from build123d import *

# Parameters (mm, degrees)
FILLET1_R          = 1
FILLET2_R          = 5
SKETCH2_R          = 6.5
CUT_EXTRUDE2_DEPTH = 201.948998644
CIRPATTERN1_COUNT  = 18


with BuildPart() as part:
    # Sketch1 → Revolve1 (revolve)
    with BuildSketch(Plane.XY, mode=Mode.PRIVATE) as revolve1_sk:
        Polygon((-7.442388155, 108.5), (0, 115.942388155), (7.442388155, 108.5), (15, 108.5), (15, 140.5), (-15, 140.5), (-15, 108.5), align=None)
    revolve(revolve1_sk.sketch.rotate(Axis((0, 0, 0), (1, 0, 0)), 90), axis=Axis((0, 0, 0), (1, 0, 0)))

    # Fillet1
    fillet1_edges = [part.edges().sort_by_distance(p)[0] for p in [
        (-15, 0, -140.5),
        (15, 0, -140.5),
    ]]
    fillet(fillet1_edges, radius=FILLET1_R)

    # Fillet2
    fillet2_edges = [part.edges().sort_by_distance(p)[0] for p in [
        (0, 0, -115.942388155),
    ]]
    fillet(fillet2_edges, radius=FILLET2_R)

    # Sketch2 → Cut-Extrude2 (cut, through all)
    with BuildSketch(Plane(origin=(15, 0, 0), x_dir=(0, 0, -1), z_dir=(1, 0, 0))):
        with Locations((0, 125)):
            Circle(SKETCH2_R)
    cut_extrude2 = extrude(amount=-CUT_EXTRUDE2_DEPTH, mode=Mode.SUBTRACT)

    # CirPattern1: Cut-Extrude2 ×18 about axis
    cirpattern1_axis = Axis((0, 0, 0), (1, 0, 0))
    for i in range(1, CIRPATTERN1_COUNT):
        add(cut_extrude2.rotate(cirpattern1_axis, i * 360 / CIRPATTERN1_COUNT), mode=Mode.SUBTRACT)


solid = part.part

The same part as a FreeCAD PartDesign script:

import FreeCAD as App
import Part
import Sketcher
from FreeCAD import Vector
Q = App.Units.Quantity


def edges_at(feature, points):
    """Names of the edges that pass closest to the given points."""
    edges = feature.Shape.Edges
    near = lambda p: min(range(len(edges)), key=lambda i: edges[i].distToShape(Part.Vertex(*p))[0])
    return sorted({f"Edge{near(p) + 1}" for p in points})


def add_polygon(sketch, points):
    """Adds a closed chain of lines whose ends are joined by coincident constraints."""
    first, n = sketch.GeometryCount, len(points)
    for a, b in zip(points, points[1:] + points[:1]):
        sketch.addGeometry(Part.LineSegment(App.Vector(*a, 0), App.Vector(*b, 0)), False)
    for i in range(n):
        sketch.addConstraint(Sketcher.Constraint("Coincident", first + i, 2, first + (i + 1) % n, 1))

doc = App.newDocument("Part")
body = doc.addObject("PartDesign::Body", "Body")

# Sketch on XY plane
sketch1 = body.newObject("Sketcher::SketchObject", "Sketch")
sketch1.AttachmentSupport = (doc.getObject("XY_Plane"), [""])
sketch1.MapMode = "FlatFace"
add_polygon(sketch1, [(-7, 108), (0, 116), (7, 108), (15, 108), (15, 140), (-15, 140), (-15, 108)])  # lines 0-6
sketch1.addConstraint([
    Sketcher.Constraint("Horizontal", 2),
    Sketcher.Constraint("Vertical", 3),
    Sketcher.Constraint("Horizontal", 4),
    Sketcher.Constraint("Vertical", 5),
    Sketcher.Constraint("Horizontal", 6),
    Sketcher.Constraint("Symmetric", 2, 2, 5, 2, -2),
    Sketcher.Constraint("PointOnObject", 0, 2, -2),
    Sketcher.Constraint("Perpendicular", 0, 1),
    Sketcher.Constraint("Equal", 2, 6),
    Sketcher.Constraint("DistanceX", 4, 2, 4, 1, Q("30 mm")),
    Sketcher.Constraint("DistanceY", 3, 1, 3, 2, Q("32 mm")),
    Sketcher.Constraint("DistanceY", -1, 1, 1, 2, Q("108.5 mm")),
    Sketcher.Constraint("DistanceX", 2, 1, 2, 2, Q("7.557612 mm")),
])
revolution = body.newObject("PartDesign::Revolution", "Revolution")
revolution.Profile = sketch1
revolution.ReferenceAxis = (sketch1, ["H_Axis"])
revolution.Angle = 360
doc.recompute()

fillet = body.newObject("PartDesign::Fillet", "Fillet")
fillet.Base = (revolution, edges_at(revolution, [(-15, 0, -140.5), (15, 0, -140.5)]))
fillet.Radius = 1
doc.recompute()

fillet2 = body.newObject("PartDesign::Fillet", "Fillet001")
fillet2.Base = (fillet, edges_at(fillet, [(0, 0, -115.942)]))
fillet2.Radius = 5

# Sketch on YZ plane
sketch2 = body.newObject("Sketcher::SketchObject", "Sketch001")
sketch2.AttachmentSupport = (doc.getObject("YZ_Plane"), [""])
sketch2.MapMode = "FlatFace"
sketch2.AttachmentOffset = App.Placement(Vector(0, 0, 15), App.Rotation())
sketch2.addGeometry(Part.Circle(Vector(125, 0, 0), Vector(0, 0, 1), 6), False)
sketch2.addConstraint([
    Sketcher.Constraint("PointOnObject", 0, 3, -1),
    Sketcher.Constraint("Diameter", 0, Q("13 mm")),
    Sketcher.Constraint("DistanceX", -1, 1, 0, 3, Q("125 mm")),
])
pocket1 = body.newObject("PartDesign::Pocket", "Pocket")
pocket1.Profile = sketch2
pocket1.Type = "ThroughAll"
doc.recompute()

polarpattern = body.newObject("PartDesign::PolarPattern", "PolarPattern")
polarpattern.Originals = [pocket1]
polarpattern.Axis = (doc.getObject("X_Axis"), [""])
polarpattern.Angle = 360
polarpattern.Occurrences = 18
body.Tip = polarpattern

doc.recompute()
